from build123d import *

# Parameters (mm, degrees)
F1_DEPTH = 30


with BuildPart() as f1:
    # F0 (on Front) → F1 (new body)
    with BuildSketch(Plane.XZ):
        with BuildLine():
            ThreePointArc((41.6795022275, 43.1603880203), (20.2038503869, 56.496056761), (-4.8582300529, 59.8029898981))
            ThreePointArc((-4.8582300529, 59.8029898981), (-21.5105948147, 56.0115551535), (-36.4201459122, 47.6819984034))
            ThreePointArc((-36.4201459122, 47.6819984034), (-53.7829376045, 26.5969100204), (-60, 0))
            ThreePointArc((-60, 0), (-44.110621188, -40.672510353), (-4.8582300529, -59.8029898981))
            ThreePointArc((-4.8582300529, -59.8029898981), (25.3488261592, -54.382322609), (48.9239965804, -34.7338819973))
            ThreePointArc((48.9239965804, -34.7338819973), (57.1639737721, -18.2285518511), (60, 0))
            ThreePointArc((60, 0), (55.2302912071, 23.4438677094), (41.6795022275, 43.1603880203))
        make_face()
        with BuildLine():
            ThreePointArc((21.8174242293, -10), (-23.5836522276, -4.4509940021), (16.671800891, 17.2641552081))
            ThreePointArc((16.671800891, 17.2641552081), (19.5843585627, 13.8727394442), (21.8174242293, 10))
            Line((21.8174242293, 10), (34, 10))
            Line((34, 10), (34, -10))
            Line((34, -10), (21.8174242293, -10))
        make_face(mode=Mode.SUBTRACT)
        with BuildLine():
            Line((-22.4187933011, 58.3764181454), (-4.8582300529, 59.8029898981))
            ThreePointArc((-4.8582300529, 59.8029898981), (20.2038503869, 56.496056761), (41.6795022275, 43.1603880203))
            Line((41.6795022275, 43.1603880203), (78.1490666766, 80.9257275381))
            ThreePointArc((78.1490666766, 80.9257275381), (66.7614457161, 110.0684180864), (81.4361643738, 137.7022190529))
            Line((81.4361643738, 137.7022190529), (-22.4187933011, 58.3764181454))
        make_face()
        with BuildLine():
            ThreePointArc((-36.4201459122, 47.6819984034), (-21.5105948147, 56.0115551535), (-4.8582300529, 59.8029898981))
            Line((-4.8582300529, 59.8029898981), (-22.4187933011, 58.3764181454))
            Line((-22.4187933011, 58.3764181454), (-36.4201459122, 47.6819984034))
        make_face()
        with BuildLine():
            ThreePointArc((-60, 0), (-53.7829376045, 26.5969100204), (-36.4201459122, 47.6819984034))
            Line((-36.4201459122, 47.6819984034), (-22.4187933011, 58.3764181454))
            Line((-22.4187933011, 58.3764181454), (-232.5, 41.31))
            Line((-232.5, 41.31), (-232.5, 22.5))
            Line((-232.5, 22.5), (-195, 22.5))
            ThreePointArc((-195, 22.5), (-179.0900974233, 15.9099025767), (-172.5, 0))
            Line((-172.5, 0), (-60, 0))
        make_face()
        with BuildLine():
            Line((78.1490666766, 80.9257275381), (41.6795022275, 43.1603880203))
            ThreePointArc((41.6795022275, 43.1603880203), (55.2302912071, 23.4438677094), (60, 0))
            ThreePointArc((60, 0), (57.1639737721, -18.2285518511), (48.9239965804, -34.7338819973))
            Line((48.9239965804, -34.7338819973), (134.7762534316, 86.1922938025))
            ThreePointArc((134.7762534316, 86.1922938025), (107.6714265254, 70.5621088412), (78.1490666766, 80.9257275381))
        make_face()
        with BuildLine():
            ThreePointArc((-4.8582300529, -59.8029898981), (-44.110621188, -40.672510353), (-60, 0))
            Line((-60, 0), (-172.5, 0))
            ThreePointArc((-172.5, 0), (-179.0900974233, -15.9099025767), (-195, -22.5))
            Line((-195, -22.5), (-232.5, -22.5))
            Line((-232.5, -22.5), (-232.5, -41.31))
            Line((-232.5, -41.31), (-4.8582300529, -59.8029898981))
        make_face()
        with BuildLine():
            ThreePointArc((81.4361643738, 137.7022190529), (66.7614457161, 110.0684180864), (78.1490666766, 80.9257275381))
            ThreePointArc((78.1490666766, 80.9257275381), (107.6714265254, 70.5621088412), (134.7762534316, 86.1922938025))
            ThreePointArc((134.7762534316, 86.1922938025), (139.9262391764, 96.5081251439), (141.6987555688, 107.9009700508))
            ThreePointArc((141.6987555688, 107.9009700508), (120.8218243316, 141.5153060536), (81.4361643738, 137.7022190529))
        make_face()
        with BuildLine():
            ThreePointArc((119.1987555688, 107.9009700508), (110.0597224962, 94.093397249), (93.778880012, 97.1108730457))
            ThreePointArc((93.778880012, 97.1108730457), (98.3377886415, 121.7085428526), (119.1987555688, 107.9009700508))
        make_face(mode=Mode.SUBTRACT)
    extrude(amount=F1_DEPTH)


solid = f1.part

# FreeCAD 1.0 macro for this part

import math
import FreeCAD as App
import Part
import Sketcher

doc = App.newDocument("Part")
body = doc.addObject("PartDesign::Body", "Body")

sketch1 = body.newObject("Sketcher::SketchObject", "Sketch")
sketch1.AttachmentSupport = (doc.getObject("XZ_Plane"), [""])
sketch1.MapMode = "FlatFace"
sketch1.addGeometry(Part.LineSegment(App.Vector(81, 138, 0), App.Vector(-22, 58, 0)), False)
sketch1.addGeometry(Part.LineSegment(App.Vector(-22, 58, 0), App.Vector(-232, 41, 0)), False)
sketch1.addGeometry(Part.LineSegment(App.Vector(-232, 41, 0), App.Vector(-232, 22, 0)), False)
sketch1.addGeometry(Part.LineSegment(App.Vector(-232, 22, 0), App.Vector(-195, 22, 0)), False)
sketch1.addGeometry(Part.ArcOfCircle(Part.Circle(App.Vector(-195, 0, 0), App.Vector(0, 0, 1), 22), math.radians(-90), math.radians(90)), False)
sketch1.addGeometry(Part.LineSegment(App.Vector(-195, -22, 0), App.Vector(-232, -22, 0)), False)
sketch1.addGeometry(Part.LineSegment(App.Vector(-232, -22, 0), App.Vector(-232, -41, 0)), False)
sketch1.addGeometry(Part.LineSegment(App.Vector(-232, -41, 0), App.Vector(-5, -60, 0)), False)
sketch1.addGeometry(Part.ArcOfCircle(Part.Circle(App.Vector(0, 0, 0), App.Vector(0, 0, 1), 60), math.radians(-95), math.radians(-35)), False)
sketch1.addGeometry(Part.LineSegment(App.Vector(49, -35, 0), App.Vector(135, 86, 0)), False)
sketch1.addGeometry(Part.ArcOfCircle(Part.Circle(App.Vector(104, 108, 0), App.Vector(0, 0, 1), 37), math.radians(-35), math.radians(0)), False)
sketch1.addGeometry(Part.ArcOfCircle(Part.Circle(App.Vector(104, 108, 0), App.Vector(0, 0, 1), 38), math.radians(0), math.radians(127)), False)
sketch1.addGeometry(Part.LineSegment(App.Vector(34, -10, 0), App.Vector(22, -10, 0)), False)
sketch1.addGeometry(Part.ArcOfCircle(Part.Circle(App.Vector(0, 0, 0), App.Vector(0, 0, 1), 24), math.radians(46), math.radians(335)), False)
sketch1.addGeometry(Part.ArcOfCircle(Part.Circle(App.Vector(0, 0, 0), App.Vector(0, 0, 1), 24), math.radians(25), math.radians(46)), False)
sketch1.addGeometry(Part.LineSegment(App.Vector(22, 10, 0), App.Vector(34, 10, 0)), False)
sketch1.addGeometry(Part.LineSegment(App.Vector(34, 10, 0), App.Vector(34, -10, 0)), False)
sketch1.addGeometry(Part.ArcOfCircle(Part.Circle(App.Vector(104, 108, 0), App.Vector(0, 0, 1), 15), math.radians(0), math.radians(226)), False)
sketch1.addGeometry(Part.ArcOfCircle(Part.Circle(App.Vector(104, 108, 0), App.Vector(0, 0, 1), 15), math.radians(-134), math.radians(0)), False)
sketch1.addConstraint(Sketcher.Constraint("Coincident", 0, 2, 1, 1))
sketch1.addConstraint(Sketcher.Constraint("Coincident", 1, 2, 2, 1))
sketch1.addConstraint(Sketcher.Constraint("Coincident", 2, 2, 3, 1))
sketch1.addConstraint(Sketcher.Constraint("Tangent", 3, 2, 4, 2))
sketch1.addConstraint(Sketcher.Constraint("Tangent", 4, 1, 5, 1))
sketch1.addConstraint(Sketcher.Constraint("Coincident", 5, 2, 6, 1))
sketch1.addConstraint(Sketcher.Constraint("Coincident", 6, 2, 7, 1))
sketch1.addConstraint(Sketcher.Constraint("Tangent", 7, 2, 8, 1))
sketch1.addConstraint(Sketcher.Constraint("Tangent", 8, 2, 9, 1))
sketch1.addConstraint(Sketcher.Constraint("Tangent", 9, 2, 10, 1))
sketch1.addConstraint(Sketcher.Constraint("Tangent", 10, 2, 11, 1))
sketch1.addConstraint(Sketcher.Constraint("Tangent", 11, 2, 0, 1))
sketch1.addConstraint(Sketcher.Constraint("Coincident", 12, 2, 13, 2))
sketch1.addConstraint(Sketcher.Constraint("Tangent", 13, 1, 14, 2))
sketch1.addConstraint(Sketcher.Constraint("Coincident", 14, 1, 15, 1))
sketch1.addConstraint(Sketcher.Constraint("Coincident", 15, 2, 16, 1))
sketch1.addConstraint(Sketcher.Constraint("Coincident", 16, 2, 12, 1))
sketch1.addConstraint(Sketcher.Constraint("Tangent", 17, 1, 18, 2))
sketch1.addConstraint(Sketcher.Constraint("Coincident", 18, 1, 17, 2))
sketch1.addConstraint(Sketcher.Constraint("Vertical", 2))
sketch1.addConstraint(Sketcher.Constraint("Horizontal", 3))
sketch1.addConstraint(Sketcher.Constraint("Horizontal", 5))
sketch1.addConstraint(Sketcher.Constraint("Vertical", 6))
sketch1.addConstraint(Sketcher.Constraint("Horizontal", 12))
sketch1.addConstraint(Sketcher.Constraint("Horizontal", 15))
sketch1.addConstraint(Sketcher.Constraint("Vertical", 16))
sketch1.addConstraint(Sketcher.Constraint("Coincident", 8, 3, -1, 1))
sketch1.addConstraint(Sketcher.Constraint("Coincident", 13, 3, -1, 1))
sketch1.addConstraint(Sketcher.Constraint("Coincident", 17, 3, 10, 3))
sketch1.addConstraint(Sketcher.Constraint("Equal", 10, 11))
sketch1.addConstraint(Sketcher.Constraint("Equal", 13, 14))
sketch1.addConstraint(Sketcher.Constraint("Symmetric", 2, 2, 5, 2, -1))
sketch1.addConstraint(Sketcher.Constraint("Horizontal", 18, 3, 10, 2))
sketch1.addConstraint(Sketcher.Constraint("Horizontal", 10, 2, 17, 1))
sketch1.addConstraint(Sketcher.Constraint("Vertical", 12, 2, 14, 1))
sketch1.addConstraint(Sketcher.Constraint("Equal", 2, 6))
sketch1.addConstraint(Sketcher.Constraint("Radius", 8, 60.0))
sketch1.addConstraint(Sketcher.Constraint("Radius", 13, 24.0))
sketch1.addConstraint(Sketcher.Constraint("Radius", 17, 15.0))
sketch1.addConstraint(Sketcher.Constraint("Radius", 4, 22.5))
sketch1.addConstraint(Sketcher.Constraint("Radius", 10, 37.5))
sketch1.addConstraint(Sketcher.Constraint("DistanceY", 16, 2, 16, 1, 20.0))
sketch1.addConstraint(Sketcher.Constraint("DistanceX", 3, 1, 3, 2, 37.5))
sketch1.addConstraint(Sketcher.Constraint("DistanceX", 4, 3, -1, 1, 195.0))
sketch1.addConstraint(Sketcher.Constraint("DistanceX", -1, 1, 15, 2, 34.0))
sketch1.addConstraint(Sketcher.Constraint("DistanceY", 2, 2, 2, 1, 18.81))
sketch1.addConstraint(Sketcher.Constraint("Distance", 9, 148.3029))
sketch1.addConstraint(Sketcher.Constraint("DistanceX", -1, 1, 13, 1, 16.671801))
sketch1.addConstraint(Sketcher.Constraint("DistanceY", 8, 2, 0, 2, 93.1103))
sketch1.addConstraint(Sketcher.Constraint("Distance", 1, 210.773281))
sketch1.addConstraint(Sketcher.Constraint("DistanceY", -1, 1, 10, 3, 107.90097))
sketch1.addConstraint(Sketcher.Constraint("DistanceX", -1, 1, 18, 1, 93.77888))
pad1 = body.newObject("PartDesign::Pad", "Pad")
pad1.Profile = sketch1
pad1.Length = 30

doc.recompute()
